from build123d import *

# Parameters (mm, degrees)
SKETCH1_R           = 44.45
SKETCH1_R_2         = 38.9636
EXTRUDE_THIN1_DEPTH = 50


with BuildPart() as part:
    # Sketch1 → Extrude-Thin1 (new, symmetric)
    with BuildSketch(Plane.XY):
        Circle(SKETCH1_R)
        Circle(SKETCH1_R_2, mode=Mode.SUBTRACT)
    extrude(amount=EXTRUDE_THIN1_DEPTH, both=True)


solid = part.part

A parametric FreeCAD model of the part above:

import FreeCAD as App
import Part
import Sketcher
from FreeCAD import Vector
Q = App.Units.Quantity

doc = App.newDocument("Part")
params = doc.addObject("Spreadsheet::Sheet", "Params")
for row, (alias, value) in enumerate([
    ("sketch1_diameter", "3.5 in"),
    ("sketch1_diameter2", "3.068 in"),
    ("pad1_length", "100 mm"),
], start=1):
    params.set(f"A{row}", alias)
    params.set(f"B{row}", "=" + value)
    params.setAlias(f"B{row}", alias)

body = doc.addObject("PartDesign::Body", "Body")

sketch1 = body.newObject("Sketcher::SketchObject", "Sketch")
sketch1.AttachmentSupport = (doc.getObject("XY_Plane"), [""])
sketch1.MapMode = "FlatFace"
sketch1.addGeometry([
    Part.Circle(Vector(0, 0, 0), Vector(0, 0, 1), 44),
    Part.Circle(Vector(0, 0, 0), Vector(0, 0, 1), 39),
], False)
sketch1.addConstraint([
    Sketcher.Constraint("Coincident", 0, 3, -1, 1),
    Sketcher.Constraint("Coincident", 1, 3, -1, 1),
    Sketcher.Constraint("Diameter", 0, Q("3.5 in")),
    Sketcher.Constraint("Diameter", 1, Q("3.068 in")),
])
sketch1.setExpression("Constraints[2]", "Params.sketch1_diameter")
sketch1.setExpression("Constraints[3]", "Params.sketch1_diameter2")
pad1 = body.newObject("PartDesign::Pad", "Pad")
pad1.Profile = sketch1
pad1.setExpression("Length", "Params.pad1_length")
pad1.Midplane = True

doc.recompute()
